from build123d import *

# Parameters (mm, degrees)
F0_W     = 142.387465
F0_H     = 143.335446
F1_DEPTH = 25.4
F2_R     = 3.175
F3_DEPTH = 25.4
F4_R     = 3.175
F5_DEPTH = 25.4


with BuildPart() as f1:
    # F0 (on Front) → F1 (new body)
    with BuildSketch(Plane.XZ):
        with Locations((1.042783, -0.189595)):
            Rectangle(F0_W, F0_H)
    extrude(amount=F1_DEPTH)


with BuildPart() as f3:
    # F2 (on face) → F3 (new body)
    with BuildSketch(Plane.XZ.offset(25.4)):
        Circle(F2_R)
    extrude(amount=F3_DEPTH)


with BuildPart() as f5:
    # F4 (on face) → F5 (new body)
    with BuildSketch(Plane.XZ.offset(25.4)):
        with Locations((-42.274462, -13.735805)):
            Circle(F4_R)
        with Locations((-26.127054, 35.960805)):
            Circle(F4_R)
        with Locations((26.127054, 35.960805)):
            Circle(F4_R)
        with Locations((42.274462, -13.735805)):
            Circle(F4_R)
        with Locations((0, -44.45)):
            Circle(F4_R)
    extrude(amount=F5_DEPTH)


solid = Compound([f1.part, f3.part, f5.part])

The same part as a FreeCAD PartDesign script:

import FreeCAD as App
import Part
import Sketcher
from FreeCAD import Vector
Q = App.Units.Quantity

doc = App.newDocument("Part")
body = doc.addObject("PartDesign::Body", "Body")

sketch1 = doc.addObject("Sketcher::SketchObject", "Sketch")
body.addObject(sketch1)
sketch1.AttachmentSupport = (doc.XZ_Plane, [""])
sketch1.MapMode = "FlatFace"
sketch1.addGeometry(Part.LineSegment(Vector(-70, 71, 0), Vector(-70, -72, 0)), False)
sketch1.addGeometry(Part.LineSegment(Vector(-70, -72, 0), Vector(72, -72, 0)), False)
sketch1.addGeometry(Part.LineSegment(Vector(72, -72, 0), Vector(72, 71, 0)), False)
sketch1.addGeometry(Part.LineSegment(Vector(72, 71, 0), Vector(-70, 71, 0)), False)
sketch1.addConstraint(Sketcher.Constraint("Coincident", 0, 2, 1, 1))
sketch1.addConstraint(Sketcher.Constraint("Coincident", 1, 2, 2, 1))
sketch1.addConstraint(Sketcher.Constraint("Coincident", 2, 2, 3, 1))
sketch1.addConstraint(Sketcher.Constraint("Coincident", 3, 2, 0, 1))
sketch1.addConstraint(Sketcher.Constraint("Vertical", 0))
sketch1.addConstraint(Sketcher.Constraint("Horizontal", 1))
sketch1.addConstraint(Sketcher.Constraint("Vertical", 2))
sketch1.addConstraint(Sketcher.Constraint("Horizontal", 3))
sketch1.addConstraint(Sketcher.Constraint("DistanceX", 1, 1, 1, 2, 142.387465))
sketch1.addConstraint(Sketcher.Constraint("DistanceY", 0, 2, 0, 1, 143.335446))
sketch1.addConstraint(Sketcher.Constraint("DistanceX", 0, 2, -1, 1, 70.150949))
sketch1.addConstraint(Sketcher.Constraint("DistanceY", 0, 2, -1, 1, 71.857318))
pad1 = doc.addObject("PartDesign::Pad", "Pad")
body.addObject(pad1)
pad1.Profile = sketch1
pad1.Length = Q("1 in")
body2 = doc.addObject("PartDesign::Body", "Body001")

sketch2 = doc.addObject("Sketcher::SketchObject", "Sketch001")
body2.addObject(sketch2)
sketch2.AttachmentSupport = (doc.getObject("XZ_Plane001"), [""])
sketch2.MapMode = "FlatFace"
sketch2.AttachmentOffset = App.Placement(Vector(0, 0, 1 * 25.4), App.Rotation())
sketch2.addGeometry(Part.Circle(Vector(0, 0, 0), Vector(0, 0, 1), 3.2), False)
sketch2.addConstraint(Sketcher.Constraint("Coincident", 0, 3, -1, 1))
sketch2.addConstraint(Sketcher.Constraint("Diameter", 0, Q("0.25 in")))
pad2 = doc.addObject("PartDesign::Pad", "Pad001")
body2.addObject(pad2)
pad2.Profile = sketch2
pad2.Length = Q("1 in")
body3 = doc.addObject("PartDesign::Body", "Body002")
body3.AllowCompound = True

sketch3 = doc.addObject("Sketcher::SketchObject", "Sketch002")
body3.addObject(sketch3)
sketch3.AttachmentSupport = (doc.getObject("XZ_Plane002"), [""])
sketch3.MapMode = "FlatFace"
sketch3.AttachmentOffset = App.Placement(Vector(0, 0, 1 * 25.4), App.Rotation())
sketch3.addGeometry(Part.Circle(Vector(-42.3, -13.7, 0), Vector(0, 0, 1), 3.2), False)
sketch3.addGeometry(Part.Circle(Vector(-26.1, 36, 0), Vector(0, 0, 1), 3.2), False)
sketch3.addGeometry(Part.Circle(Vector(26.1, 36, 0), Vector(0, 0, 1), 3.2), False)
sketch3.addGeometry(Part.Circle(Vector(42.3, -13.7, 0), Vector(0, 0, 1), 3.2), False)
sketch3.addGeometry(Part.Circle(Vector(0, -44.5, 0), Vector(0, 0, 1), 3.2), False)
sketch3.addConstraint(Sketcher.Constraint("Equal", 0, 1))
sketch3.addConstraint(Sketcher.Constraint("Equal", 1, 2))
sketch3.addConstraint(Sketcher.Constraint("Equal", 2, 3))
sketch3.addConstraint(Sketcher.Constraint("Equal", 3, 4))
sketch3.addConstraint(Sketcher.Constraint("Symmetric", 1, 3, 2, 3, -2))
sketch3.addConstraint(Sketcher.Constraint("Symmetric", 0, 3, 3, 3, -2))
sketch3.addConstraint(Sketcher.Constraint("PointOnObject", 4, 3, -2))
sketch3.addConstraint(Sketcher.Constraint("Diameter", 0, Q("0.25 in")))
sketch3.addConstraint(Sketcher.Constraint("DistanceY", 4, 3, -1, 1, Q("1.75 in")))
sketch3.addConstraint(Sketcher.Constraint("DistanceY", 0, 3, 1, 3, 49.69661))
sketch3.addConstraint(Sketcher.Constraint("DistanceX", 1, 3, 2, 3, 52.254108))
sketch3.addConstraint(Sketcher.Constraint("DistanceX", 0, 3, -1, 1, 42.274462))
sketch3.addConstraint(Sketcher.Constraint("DistanceY", 0, 3, -1, 1, 13.735805))
pad3 = doc.addObject("PartDesign::Pad", "Pad002")
body3.addObject(pad3)
pad3.Profile = sketch3
pad3.Length = Q("1 in")

doc.recompute()
